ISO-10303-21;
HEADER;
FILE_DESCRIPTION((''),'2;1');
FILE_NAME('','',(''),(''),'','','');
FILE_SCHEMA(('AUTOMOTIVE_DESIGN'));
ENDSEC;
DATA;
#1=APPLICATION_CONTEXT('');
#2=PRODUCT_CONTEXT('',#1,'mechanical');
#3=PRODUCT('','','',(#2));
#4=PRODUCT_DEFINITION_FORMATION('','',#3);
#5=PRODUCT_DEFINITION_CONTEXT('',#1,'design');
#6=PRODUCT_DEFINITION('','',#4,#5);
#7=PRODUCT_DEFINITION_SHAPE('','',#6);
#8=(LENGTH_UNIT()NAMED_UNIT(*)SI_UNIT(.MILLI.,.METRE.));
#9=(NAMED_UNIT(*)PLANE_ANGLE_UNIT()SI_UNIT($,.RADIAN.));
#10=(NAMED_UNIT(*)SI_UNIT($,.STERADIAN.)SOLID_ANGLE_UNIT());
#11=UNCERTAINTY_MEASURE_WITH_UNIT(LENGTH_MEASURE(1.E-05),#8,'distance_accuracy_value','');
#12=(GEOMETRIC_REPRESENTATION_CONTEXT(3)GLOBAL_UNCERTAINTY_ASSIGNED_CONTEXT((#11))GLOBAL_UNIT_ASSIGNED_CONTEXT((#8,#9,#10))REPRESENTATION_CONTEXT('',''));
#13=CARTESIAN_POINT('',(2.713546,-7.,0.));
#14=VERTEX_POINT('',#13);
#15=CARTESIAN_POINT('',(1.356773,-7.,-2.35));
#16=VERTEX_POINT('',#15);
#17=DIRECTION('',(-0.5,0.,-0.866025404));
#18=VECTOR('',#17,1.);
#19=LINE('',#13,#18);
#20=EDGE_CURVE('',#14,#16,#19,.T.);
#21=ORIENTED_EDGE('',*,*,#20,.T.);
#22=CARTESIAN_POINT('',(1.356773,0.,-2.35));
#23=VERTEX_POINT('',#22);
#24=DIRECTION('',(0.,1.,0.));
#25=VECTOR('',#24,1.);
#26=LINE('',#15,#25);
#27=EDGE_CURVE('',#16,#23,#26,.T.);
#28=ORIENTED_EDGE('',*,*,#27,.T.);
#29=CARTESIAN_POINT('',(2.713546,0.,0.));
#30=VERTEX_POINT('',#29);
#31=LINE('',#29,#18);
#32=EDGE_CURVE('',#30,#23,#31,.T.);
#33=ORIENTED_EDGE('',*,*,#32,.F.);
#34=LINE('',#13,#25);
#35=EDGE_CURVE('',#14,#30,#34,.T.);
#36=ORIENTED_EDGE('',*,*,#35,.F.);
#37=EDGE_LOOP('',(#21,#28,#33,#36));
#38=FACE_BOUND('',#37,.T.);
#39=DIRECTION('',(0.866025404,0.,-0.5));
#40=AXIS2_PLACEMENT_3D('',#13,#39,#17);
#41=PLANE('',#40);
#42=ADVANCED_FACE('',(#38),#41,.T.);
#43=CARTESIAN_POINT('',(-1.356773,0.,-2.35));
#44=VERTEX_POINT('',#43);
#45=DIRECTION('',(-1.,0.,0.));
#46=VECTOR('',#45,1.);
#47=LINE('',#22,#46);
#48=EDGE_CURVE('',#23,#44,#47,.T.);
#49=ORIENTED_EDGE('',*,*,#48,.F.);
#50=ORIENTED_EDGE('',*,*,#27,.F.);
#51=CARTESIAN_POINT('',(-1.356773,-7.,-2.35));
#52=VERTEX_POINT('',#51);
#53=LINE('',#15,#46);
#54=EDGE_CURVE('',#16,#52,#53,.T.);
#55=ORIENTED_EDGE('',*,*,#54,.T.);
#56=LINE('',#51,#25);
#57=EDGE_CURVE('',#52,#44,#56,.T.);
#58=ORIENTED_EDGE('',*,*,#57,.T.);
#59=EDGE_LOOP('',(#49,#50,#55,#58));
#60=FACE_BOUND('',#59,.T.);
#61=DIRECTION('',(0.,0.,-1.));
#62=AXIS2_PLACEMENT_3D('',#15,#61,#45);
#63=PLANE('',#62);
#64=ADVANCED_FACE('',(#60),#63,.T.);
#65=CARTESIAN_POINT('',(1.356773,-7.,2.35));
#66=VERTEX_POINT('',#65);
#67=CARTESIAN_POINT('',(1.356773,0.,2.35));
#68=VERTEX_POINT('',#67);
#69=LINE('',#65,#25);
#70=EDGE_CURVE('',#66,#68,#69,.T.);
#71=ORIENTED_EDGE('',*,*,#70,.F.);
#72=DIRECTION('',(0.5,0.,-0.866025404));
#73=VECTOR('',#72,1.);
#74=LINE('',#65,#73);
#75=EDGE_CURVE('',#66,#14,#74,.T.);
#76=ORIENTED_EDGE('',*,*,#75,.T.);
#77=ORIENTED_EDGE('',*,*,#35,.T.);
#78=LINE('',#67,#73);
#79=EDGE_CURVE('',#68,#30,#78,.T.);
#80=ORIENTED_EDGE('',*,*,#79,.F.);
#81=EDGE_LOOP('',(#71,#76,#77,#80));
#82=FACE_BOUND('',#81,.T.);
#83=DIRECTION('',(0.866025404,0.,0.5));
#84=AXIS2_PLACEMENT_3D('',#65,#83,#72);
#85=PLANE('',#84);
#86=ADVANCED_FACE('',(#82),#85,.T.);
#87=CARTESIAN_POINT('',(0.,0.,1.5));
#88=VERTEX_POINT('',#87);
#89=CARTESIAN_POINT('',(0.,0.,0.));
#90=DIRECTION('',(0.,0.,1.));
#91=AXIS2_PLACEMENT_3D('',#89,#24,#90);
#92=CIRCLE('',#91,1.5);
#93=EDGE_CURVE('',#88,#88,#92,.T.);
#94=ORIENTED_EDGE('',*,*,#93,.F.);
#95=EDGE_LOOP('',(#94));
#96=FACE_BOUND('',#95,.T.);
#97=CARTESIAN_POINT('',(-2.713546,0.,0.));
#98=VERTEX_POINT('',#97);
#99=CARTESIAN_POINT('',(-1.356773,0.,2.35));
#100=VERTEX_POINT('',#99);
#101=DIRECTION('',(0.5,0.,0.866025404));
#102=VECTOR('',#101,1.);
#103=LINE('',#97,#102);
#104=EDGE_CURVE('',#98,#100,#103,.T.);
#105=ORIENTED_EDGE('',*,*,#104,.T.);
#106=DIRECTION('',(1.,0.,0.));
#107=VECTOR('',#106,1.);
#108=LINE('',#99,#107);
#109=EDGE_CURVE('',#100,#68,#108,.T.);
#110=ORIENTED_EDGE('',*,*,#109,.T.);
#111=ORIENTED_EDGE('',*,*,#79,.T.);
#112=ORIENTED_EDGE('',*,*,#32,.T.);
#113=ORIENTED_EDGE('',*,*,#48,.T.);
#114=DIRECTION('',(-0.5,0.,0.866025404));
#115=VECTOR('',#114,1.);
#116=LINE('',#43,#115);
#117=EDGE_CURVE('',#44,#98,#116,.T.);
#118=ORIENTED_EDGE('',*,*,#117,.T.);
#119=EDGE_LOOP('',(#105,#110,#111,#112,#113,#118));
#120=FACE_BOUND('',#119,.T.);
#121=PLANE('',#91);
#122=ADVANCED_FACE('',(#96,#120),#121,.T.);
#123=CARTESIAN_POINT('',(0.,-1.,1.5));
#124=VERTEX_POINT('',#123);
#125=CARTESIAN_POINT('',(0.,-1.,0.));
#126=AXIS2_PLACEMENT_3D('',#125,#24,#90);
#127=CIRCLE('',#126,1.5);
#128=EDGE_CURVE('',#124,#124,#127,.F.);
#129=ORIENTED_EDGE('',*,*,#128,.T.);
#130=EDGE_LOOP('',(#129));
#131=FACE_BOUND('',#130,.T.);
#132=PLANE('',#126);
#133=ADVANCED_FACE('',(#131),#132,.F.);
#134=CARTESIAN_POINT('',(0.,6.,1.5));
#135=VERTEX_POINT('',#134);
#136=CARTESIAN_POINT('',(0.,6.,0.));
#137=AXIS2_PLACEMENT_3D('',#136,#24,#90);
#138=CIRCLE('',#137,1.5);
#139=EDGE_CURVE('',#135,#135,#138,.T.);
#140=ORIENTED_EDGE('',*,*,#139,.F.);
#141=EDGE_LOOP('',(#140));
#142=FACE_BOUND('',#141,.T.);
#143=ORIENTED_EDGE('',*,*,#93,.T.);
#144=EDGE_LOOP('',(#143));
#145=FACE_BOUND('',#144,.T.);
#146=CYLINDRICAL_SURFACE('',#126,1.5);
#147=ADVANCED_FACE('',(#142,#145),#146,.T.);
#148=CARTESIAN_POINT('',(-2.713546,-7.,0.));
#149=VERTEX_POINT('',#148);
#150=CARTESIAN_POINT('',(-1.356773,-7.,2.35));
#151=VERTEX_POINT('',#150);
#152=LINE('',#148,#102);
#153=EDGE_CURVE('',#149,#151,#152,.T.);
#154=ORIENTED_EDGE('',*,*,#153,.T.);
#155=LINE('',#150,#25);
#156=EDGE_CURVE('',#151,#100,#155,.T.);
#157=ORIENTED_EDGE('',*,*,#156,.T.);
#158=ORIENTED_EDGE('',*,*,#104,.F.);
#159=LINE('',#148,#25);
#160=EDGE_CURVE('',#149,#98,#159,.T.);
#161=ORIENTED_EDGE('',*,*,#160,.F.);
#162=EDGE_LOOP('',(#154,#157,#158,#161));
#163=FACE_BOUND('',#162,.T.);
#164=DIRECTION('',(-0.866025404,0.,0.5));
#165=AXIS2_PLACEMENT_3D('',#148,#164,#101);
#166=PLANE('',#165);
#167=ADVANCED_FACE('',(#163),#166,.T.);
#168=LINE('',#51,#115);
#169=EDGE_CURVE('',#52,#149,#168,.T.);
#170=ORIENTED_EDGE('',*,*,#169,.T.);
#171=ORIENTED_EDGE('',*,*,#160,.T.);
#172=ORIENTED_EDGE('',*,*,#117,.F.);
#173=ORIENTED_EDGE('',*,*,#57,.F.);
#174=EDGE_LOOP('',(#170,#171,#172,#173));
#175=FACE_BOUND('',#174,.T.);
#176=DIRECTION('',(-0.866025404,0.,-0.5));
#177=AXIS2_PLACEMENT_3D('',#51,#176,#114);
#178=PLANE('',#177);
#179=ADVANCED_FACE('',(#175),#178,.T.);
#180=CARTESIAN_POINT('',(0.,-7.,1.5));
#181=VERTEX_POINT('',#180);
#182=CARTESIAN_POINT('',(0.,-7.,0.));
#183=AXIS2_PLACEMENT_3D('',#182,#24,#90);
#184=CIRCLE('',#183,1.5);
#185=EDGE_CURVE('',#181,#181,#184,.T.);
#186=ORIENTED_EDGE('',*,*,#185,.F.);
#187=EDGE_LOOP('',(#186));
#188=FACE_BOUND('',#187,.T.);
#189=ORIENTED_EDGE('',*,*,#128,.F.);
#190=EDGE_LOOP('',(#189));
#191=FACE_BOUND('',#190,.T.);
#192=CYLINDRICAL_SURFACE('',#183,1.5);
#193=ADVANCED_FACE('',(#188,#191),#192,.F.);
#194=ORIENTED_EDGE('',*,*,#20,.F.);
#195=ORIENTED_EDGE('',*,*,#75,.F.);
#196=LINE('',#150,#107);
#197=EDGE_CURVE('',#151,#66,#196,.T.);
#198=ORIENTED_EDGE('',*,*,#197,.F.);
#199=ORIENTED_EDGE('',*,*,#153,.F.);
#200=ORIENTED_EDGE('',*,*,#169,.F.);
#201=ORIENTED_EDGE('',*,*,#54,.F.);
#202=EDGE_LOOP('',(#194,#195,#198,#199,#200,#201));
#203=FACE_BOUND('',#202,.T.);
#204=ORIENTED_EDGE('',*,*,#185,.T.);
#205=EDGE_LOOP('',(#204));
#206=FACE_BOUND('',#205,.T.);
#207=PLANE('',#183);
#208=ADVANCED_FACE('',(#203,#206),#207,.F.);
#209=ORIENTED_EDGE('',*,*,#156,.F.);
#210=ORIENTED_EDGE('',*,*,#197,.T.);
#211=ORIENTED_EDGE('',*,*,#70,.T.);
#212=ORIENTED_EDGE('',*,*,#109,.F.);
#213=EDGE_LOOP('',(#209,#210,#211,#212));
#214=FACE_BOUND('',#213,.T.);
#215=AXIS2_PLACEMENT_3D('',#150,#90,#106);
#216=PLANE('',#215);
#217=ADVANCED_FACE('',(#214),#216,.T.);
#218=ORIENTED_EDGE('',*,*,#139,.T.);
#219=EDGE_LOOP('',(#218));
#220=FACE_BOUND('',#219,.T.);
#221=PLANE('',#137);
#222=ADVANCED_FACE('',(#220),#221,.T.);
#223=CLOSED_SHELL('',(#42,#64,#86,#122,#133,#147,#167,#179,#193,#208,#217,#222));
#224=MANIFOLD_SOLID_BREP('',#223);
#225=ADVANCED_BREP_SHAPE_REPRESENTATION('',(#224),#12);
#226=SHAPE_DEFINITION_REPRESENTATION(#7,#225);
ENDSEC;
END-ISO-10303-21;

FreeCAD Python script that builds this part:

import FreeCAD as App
import Part
import Sketcher

V = App.Vector
Q = App.Units.Quantity


def add_polygon(sketch, points):
    """Adds a closed chain of lines whose ends are joined by coincident constraints."""
    first, n = sketch.GeometryCount, len(points)
    for a, b in zip(points, points[1:] + points[:1]):
        sketch.addGeometry(Part.LineSegment(App.Vector(*a, 0), App.Vector(*b, 0)), False)
    for i in range(n):
        sketch.addConstraint(Sketcher.Constraint("Coincident", first + i, 2, first + (i + 1) % n, 1))

doc = App.newDocument("Part")
params = doc.addObject("Spreadsheet::Sheet", "Params")
for row, (alias, value) in enumerate([
    ("sketch1_diameter", "3 mm"),
    ("pad1_length", "7 mm"),
    ("sketch2_diameter", "3 mm"),
    ("pad2_length", "6 mm"),
    ("pad2_length2", "1 mm"),
], start=1):
    params.set(f"A{row}", alias)
    params.set(f"B{row}", "=" + value)
    params.setAlias(f"B{row}", alias)

body = doc.addObject("PartDesign::Body", "Body")

# Sketch on XZ plane
sketch1 = body.newObject("Sketcher::SketchObject", "Sketch")
sketch1.AttachmentSupport = (doc.getObject("XZ_Plane"), [""])
sketch1.MapMode = "FlatFace"
add_polygon(sketch1, [(2.7, 0), (1.4, -2.4), (-1.4, -2.4), (-2.7, 0), (-1.4, 2.4), (1.4, 2.4)])  # lines 0-5
sketch1.addGeometry(Part.Circle(V(0, 0, 0), V(0, 0, 1), 1.5), False)  # 6
sketch1.addConstraint([
    Sketcher.Constraint("Horizontal", 1),
    Sketcher.Constraint("Horizontal", 4),
    Sketcher.Constraint("Coincident", 6, 3, -1, 1),
    Sketcher.Constraint("Symmetric", 0, 2, 3, 2, -1, 1),
    Sketcher.Constraint("Symmetric", 2, 2, 5, 2, -1, 1),
    Sketcher.Constraint("PointOnObject", 2, 2, -1),
    Sketcher.Constraint("Parallel", 2, 5),
    Sketcher.Constraint("Vertical", 1, 2, 3, 2),
    Sketcher.Constraint("Diameter", 6, 3.0),
    Sketcher.Constraint("Angle", 0, Q("-120 deg")),
    Sketcher.Constraint("DistanceY", 1, 2, 3, 2, 4.7),
    Sketcher.Constraint("DistanceX", 1, 2, 1, 1, 2.713546),
])
sketch1.setExpression("Constraints[14]", "Params.sketch1_diameter")
pad1 = body.newObject("PartDesign::Pad", "Pad")
pad1.Profile = sketch1
pad1.setExpression("Length", "Params.pad1_length")

# Sketch on XZ plane
sketch2 = body.newObject("Sketcher::SketchObject", "Sketch001")
sketch2.AttachmentSupport = (doc.getObject("XZ_Plane"), [""])
sketch2.MapMode = "FlatFace"
sketch2.addGeometry(Part.Circle(V(0, 0, 0), V(0, 0, 1), 1.5), False)
sketch2.addConstraint([
    Sketcher.Constraint("Coincident", 0, 3, -1, 1),
    Sketcher.Constraint("Diameter", 0, 3.0),
])
sketch2.setExpression("Constraints[1]", "Params.sketch2_diameter")
pad2 = body.newObject("PartDesign::Pad", "Pad001")
pad2.Profile = sketch2
pad2.Type = "TwoLengths"
pad2.setExpression("Length", "Params.pad2_length")
pad2.setExpression("Length2", "Params.pad2_length2")
pad2.Reversed = True

doc.recompute()
